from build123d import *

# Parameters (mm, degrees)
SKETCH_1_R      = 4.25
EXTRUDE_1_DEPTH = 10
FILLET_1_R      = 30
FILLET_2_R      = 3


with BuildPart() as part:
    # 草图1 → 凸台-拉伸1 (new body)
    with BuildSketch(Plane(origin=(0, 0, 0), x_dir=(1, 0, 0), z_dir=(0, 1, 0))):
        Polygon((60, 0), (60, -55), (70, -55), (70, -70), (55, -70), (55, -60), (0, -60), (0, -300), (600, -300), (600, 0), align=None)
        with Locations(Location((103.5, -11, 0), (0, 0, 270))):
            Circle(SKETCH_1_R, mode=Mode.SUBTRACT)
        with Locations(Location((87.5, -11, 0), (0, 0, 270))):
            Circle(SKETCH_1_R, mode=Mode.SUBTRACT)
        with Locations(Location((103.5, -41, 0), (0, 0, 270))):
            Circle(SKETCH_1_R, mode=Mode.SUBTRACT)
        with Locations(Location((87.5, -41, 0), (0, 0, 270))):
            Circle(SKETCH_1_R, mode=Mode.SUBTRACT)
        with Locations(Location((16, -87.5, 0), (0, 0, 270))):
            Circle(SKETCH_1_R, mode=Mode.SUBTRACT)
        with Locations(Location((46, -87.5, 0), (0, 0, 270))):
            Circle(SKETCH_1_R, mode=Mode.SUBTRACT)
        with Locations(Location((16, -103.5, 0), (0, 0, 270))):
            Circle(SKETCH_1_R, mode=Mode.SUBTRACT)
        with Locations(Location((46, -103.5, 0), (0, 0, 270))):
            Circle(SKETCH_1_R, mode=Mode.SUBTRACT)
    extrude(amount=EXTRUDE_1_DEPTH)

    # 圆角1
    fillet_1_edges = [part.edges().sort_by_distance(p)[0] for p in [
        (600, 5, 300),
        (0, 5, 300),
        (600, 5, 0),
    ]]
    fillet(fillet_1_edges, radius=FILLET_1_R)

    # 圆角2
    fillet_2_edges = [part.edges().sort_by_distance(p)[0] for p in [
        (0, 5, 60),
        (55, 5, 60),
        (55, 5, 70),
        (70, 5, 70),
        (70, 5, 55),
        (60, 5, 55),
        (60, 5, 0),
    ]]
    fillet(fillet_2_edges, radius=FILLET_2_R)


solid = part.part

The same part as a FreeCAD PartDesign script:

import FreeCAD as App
import Part
import Sketcher
from FreeCAD import Vector


def edges_at(feature, points):
    """Names of the edges that pass closest to the given points."""
    edges = feature.Shape.Edges
    near = lambda p: min(range(len(edges)), key=lambda i: edges[i].distToShape(Part.Vertex(*p))[0])
    return sorted({f"Edge{near(p) + 1}" for p in points})

doc = App.newDocument("Part")
body = doc.addObject("PartDesign::Body", "Body")

sketch1 = body.newObject("Sketcher::SketchObject", "Sketch")
sketch1.AttachmentSupport = (doc.getObject("XZ_Plane"), [""])
sketch1.MapMode = "FlatFace"
sketch1.addGeometry(Part.LineSegment(Vector(60, 0, 0), Vector(60, 55, 0)), False)
sketch1.addGeometry(Part.LineSegment(Vector(60, 55, 0), Vector(70, 55, 0)), False)
sketch1.addGeometry(Part.LineSegment(Vector(70, 55, 0), Vector(70, 70, 0)), False)
sketch1.addGeometry(Part.LineSegment(Vector(70, 70, 0), Vector(55, 70, 0)), False)
sketch1.addGeometry(Part.LineSegment(Vector(55, 70, 0), Vector(55, 60, 0)), False)
sketch1.addGeometry(Part.LineSegment(Vector(55, 60, 0), Vector(0, 60, 0)), False)
sketch1.addGeometry(Part.LineSegment(Vector(0, 60, 0), Vector(0, 300, 0)), False)
sketch1.addGeometry(Part.LineSegment(Vector(0, 300, 0), Vector(600, 300, 0)), False)
sketch1.addGeometry(Part.LineSegment(Vector(600, 300, 0), Vector(600, 0, 0)), False)
sketch1.addGeometry(Part.LineSegment(Vector(600, 0, 0), Vector(60, 0, 0)), False)
sketch1.addGeometry(Part.Circle(Vector(16, 103.5, 0), Vector(0, 0, 1), 4.2), False)
sketch1.addGeometry(Part.Circle(Vector(16, 87.5, 0), Vector(0, 0, 1), 4.2), False)
sketch1.addGeometry(Part.Circle(Vector(46, 103.5, 0), Vector(0, 0, 1), 4.2), False)
sketch1.addGeometry(Part.Circle(Vector(46, 87.5, 0), Vector(0, 0, 1), 4.2), False)
sketch1.addGeometry(Part.Circle(Vector(87.5, 41, 0), Vector(0, 0, 1), 4.2), False)
sketch1.addGeometry(Part.Circle(Vector(103.5, 41, 0), Vector(0, 0, 1), 4.2), False)
sketch1.addGeometry(Part.Circle(Vector(87.5, 11, 0), Vector(0, 0, 1), 4.2), False)
sketch1.addGeometry(Part.Circle(Vector(103.5, 11, 0), Vector(0, 0, 1), 4.2), False)
sketch1.addConstraint(Sketcher.Constraint("Coincident", 0, 2, 1, 1))
sketch1.addConstraint(Sketcher.Constraint("Coincident", 1, 2, 2, 1))
sketch1.addConstraint(Sketcher.Constraint("Coincident", 2, 2, 3, 1))
sketch1.addConstraint(Sketcher.Constraint("Coincident", 3, 2, 4, 1))
sketch1.addConstraint(Sketcher.Constraint("Coincident", 4, 2, 5, 1))
sketch1.addConstraint(Sketcher.Constraint("Coincident", 5, 2, 6, 1))
sketch1.addConstraint(Sketcher.Constraint("Coincident", 6, 2, 7, 1))
sketch1.addConstraint(Sketcher.Constraint("Coincident", 7, 2, 8, 1))
sketch1.addConstraint(Sketcher.Constraint("Coincident", 8, 2, 9, 1))
sketch1.addConstraint(Sketcher.Constraint("Coincident", 9, 2, 0, 1))
sketch1.addConstraint(Sketcher.Constraint("Vertical", 0))
sketch1.addConstraint(Sketcher.Constraint("Horizontal", 1))
sketch1.addConstraint(Sketcher.Constraint("Vertical", 2))
sketch1.addConstraint(Sketcher.Constraint("Horizontal", 3))
sketch1.addConstraint(Sketcher.Constraint("Vertical", 4))
sketch1.addConstraint(Sketcher.Constraint("Horizontal", 5))
sketch1.addConstraint(Sketcher.Constraint("Vertical", 6))
sketch1.addConstraint(Sketcher.Constraint("Horizontal", 7))
sketch1.addConstraint(Sketcher.Constraint("Vertical", 8))
sketch1.addConstraint(Sketcher.Constraint("Horizontal", 9))
sketch1.addConstraint(Sketcher.Constraint("Equal", 10, 11))
sketch1.addConstraint(Sketcher.Constraint("Equal", 11, 12))
sketch1.addConstraint(Sketcher.Constraint("Equal", 12, 13))
sketch1.addConstraint(Sketcher.Constraint("Equal", 13, 14))
sketch1.addConstraint(Sketcher.Constraint("Equal", 14, 15))
sketch1.addConstraint(Sketcher.Constraint("Equal", 15, 16))
sketch1.addConstraint(Sketcher.Constraint("Equal", 16, 17))
sketch1.addConstraint(Sketcher.Constraint("PointOnObject", 5, 2, -2))
sketch1.addConstraint(Sketcher.Constraint("PointOnObject", 8, 2, -1))
sketch1.addConstraint(Sketcher.Constraint("Horizontal", 10, 3, 12, 3))
sketch1.addConstraint(Sketcher.Constraint("Horizontal", 11, 3, 13, 3))
sketch1.addConstraint(Sketcher.Constraint("Horizontal", 14, 3, 15, 3))
sketch1.addConstraint(Sketcher.Constraint("Horizontal", 16, 3, 17, 3))
sketch1.addConstraint(Sketcher.Constraint("Vertical", 10, 3, 11, 3))
sketch1.addConstraint(Sketcher.Constraint("Vertical", 12, 3, 13, 3))
sketch1.addConstraint(Sketcher.Constraint("Vertical", 14, 3, 16, 3))
sketch1.addConstraint(Sketcher.Constraint("Vertical", 15, 3, 17, 3))
sketch1.addConstraint(Sketcher.Constraint("Equal", 5, 0))
sketch1.addConstraint(Sketcher.Constraint("Equal", 3, 2))
sketch1.addConstraint(Sketcher.Constraint("Equal", 1, 4))
sketch1.addConstraint(Sketcher.Constraint("Diameter", 10, 8.5))
sketch1.addConstraint(Sketcher.Constraint("DistanceX", 1, 1, 1, 2, 10.0))
sketch1.addConstraint(Sketcher.Constraint("DistanceX", 3, 2, 3, 1, 15.0))
sketch1.addConstraint(Sketcher.Constraint("DistanceX", 5, 2, 5, 1, 55.0))
sketch1.addConstraint(Sketcher.Constraint("DistanceX", 7, 1, 7, 2, 600.0))
sketch1.addConstraint(Sketcher.Constraint("DistanceY", 6, 1, 6, 2, 240.0))
sketch1.addConstraint(Sketcher.Constraint("DistanceX", -1, 1, 10, 3, 16.0))
sketch1.addConstraint(Sketcher.Constraint("DistanceX", -1, 1, 12, 3, 46.0))
sketch1.addConstraint(Sketcher.Constraint("DistanceY", -1, 1, 14, 3, 41.0))
sketch1.addConstraint(Sketcher.Constraint("DistanceY", -1, 1, 16, 3, 11.0))
sketch1.addConstraint(Sketcher.Constraint("DistanceY", 11, 3, 10, 3, 16.0))
sketch1.addConstraint(Sketcher.Constraint("DistanceX", 14, 3, 15, 3, 16.0))
sketch1.addConstraint(Sketcher.Constraint("DistanceY", -1, 1, 10, 3, 103.5))
sketch1.addConstraint(Sketcher.Constraint("DistanceX", -1, 1, 14, 3, 87.5))
pad1 = body.newObject("PartDesign::Pad", "Pad")
pad1.Profile = sketch1
pad1.Length = 10
pad1.Reversed = True
doc.recompute()

fillet = body.newObject("PartDesign::Fillet", "Fillet")
fillet.Base = (pad1, edges_at(pad1, [(600, 5, 300), (0, 5, 300), (600, 5, 0)]))
fillet.Radius = 30
doc.recompute()

fillet2 = body.newObject("PartDesign::Fillet", "Fillet001")
fillet2.Base = (fillet, edges_at(fillet, [
    (0, 5, 60),
    (55, 5, 60),
    (55, 5, 70),
    (70, 5, 70),
    (70, 5, 55),
    (60, 5, 55),
    (60, 5, 0),
]))
fillet2.Radius = 3

doc.recompute()
